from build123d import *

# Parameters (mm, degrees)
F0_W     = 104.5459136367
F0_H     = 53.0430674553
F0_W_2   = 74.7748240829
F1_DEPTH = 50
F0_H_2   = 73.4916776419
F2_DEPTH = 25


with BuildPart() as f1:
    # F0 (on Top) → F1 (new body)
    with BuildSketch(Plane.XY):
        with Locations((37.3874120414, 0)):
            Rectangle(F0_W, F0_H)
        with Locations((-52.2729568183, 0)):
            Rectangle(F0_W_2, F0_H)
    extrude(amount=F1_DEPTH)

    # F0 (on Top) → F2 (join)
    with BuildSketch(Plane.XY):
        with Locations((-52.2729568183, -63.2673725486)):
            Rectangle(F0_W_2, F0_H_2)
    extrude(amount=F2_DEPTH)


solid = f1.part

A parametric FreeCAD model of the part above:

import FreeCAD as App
import Part
import Sketcher

doc = App.newDocument("Part")
body = doc.addObject("PartDesign::Body", "Body")

# Sketch on XY plane
sketch1 = doc.addObject("Sketcher::SketchObject", "Sketch")
body.addObject(sketch1)
sketch1.AttachmentSupport = (doc.XY_Plane, [""])
sketch1.MapMode = "FlatFace"
sketch1.addGeometry([
    Part.LineSegment(App.Vector(90, -27, 0), App.Vector(90, 27, 0)),
    Part.LineSegment(App.Vector(90, 27, 0), App.Vector(-90, 27, 0)),
    Part.LineSegment(App.Vector(-90, 27, 0), App.Vector(-90, -27, 0)),
    Part.LineSegment(App.Vector(-90, -27, 0), App.Vector(90, -27, 0)),
], False)
sketch1.addConstraint([
    Sketcher.Constraint("Coincident", 0, 2, 1, 1),
    Sketcher.Constraint("Coincident", 1, 2, 2, 1),
    Sketcher.Constraint("Coincident", 2, 2, 3, 1),
    Sketcher.Constraint("Coincident", 3, 2, 0, 1),
    Sketcher.Constraint("Vertical", 0),
    Sketcher.Constraint("Horizontal", 1),
    Sketcher.Constraint("Vertical", 2),
    Sketcher.Constraint("Horizontal", 3),
    Sketcher.Constraint("Symmetric", 0, 2, 2, 2, -1, 1),
    Sketcher.Constraint("DistanceX", 1, 2, 1, 1, 179.320738),
    Sketcher.Constraint("DistanceY", 0, 1, 0, 2, 53.043067),
])
pad1 = doc.addObject("PartDesign::Pad", "Pad")
body.addObject(pad1)
pad1.Profile = sketch1
pad1.Length = 50

# Sketch on XY plane
sketch2 = doc.addObject("Sketcher::SketchObject", "Sketch001")
body.addObject(sketch2)
sketch2.AttachmentSupport = (doc.XY_Plane, [""])
sketch2.MapMode = "FlatFace"
sketch2.addGeometry([
    Part.LineSegment(App.Vector(-90, -27, 0), App.Vector(-90, -100, 0)),
    Part.LineSegment(App.Vector(-90, -100, 0), App.Vector(-15, -100, 0)),
    Part.LineSegment(App.Vector(-15, -100, 0), App.Vector(-15, -27, 0)),
    Part.LineSegment(App.Vector(-15, -27, 0), App.Vector(-90, -27, 0)),
], False)
sketch2.addConstraint([
    Sketcher.Constraint("Coincident", 0, 2, 1, 1),
    Sketcher.Constraint("Coincident", 1, 2, 2, 1),
    Sketcher.Constraint("Coincident", 2, 2, 3, 1),
    Sketcher.Constraint("Coincident", 3, 2, 0, 1),
    Sketcher.Constraint("Vertical", 0),
    Sketcher.Constraint("Horizontal", 1),
    Sketcher.Constraint("Vertical", 2),
    Sketcher.Constraint("Horizontal", 3),
    Sketcher.Constraint("DistanceX", 1, 1, 1, 2, 74.774824),
    Sketcher.Constraint("DistanceY", 0, 2, 0, 1, 73.491678),
    Sketcher.Constraint("DistanceX", 0, 2, -1, 1, 89.660369),
    Sketcher.Constraint("DistanceY", 0, 2, -1, 1, 100.013211),
])
pad2 = doc.addObject("PartDesign::Pad", "Pad001")
body.addObject(pad2)
pad2.Profile = sketch2
pad2.Length = 25

doc.recompute()
